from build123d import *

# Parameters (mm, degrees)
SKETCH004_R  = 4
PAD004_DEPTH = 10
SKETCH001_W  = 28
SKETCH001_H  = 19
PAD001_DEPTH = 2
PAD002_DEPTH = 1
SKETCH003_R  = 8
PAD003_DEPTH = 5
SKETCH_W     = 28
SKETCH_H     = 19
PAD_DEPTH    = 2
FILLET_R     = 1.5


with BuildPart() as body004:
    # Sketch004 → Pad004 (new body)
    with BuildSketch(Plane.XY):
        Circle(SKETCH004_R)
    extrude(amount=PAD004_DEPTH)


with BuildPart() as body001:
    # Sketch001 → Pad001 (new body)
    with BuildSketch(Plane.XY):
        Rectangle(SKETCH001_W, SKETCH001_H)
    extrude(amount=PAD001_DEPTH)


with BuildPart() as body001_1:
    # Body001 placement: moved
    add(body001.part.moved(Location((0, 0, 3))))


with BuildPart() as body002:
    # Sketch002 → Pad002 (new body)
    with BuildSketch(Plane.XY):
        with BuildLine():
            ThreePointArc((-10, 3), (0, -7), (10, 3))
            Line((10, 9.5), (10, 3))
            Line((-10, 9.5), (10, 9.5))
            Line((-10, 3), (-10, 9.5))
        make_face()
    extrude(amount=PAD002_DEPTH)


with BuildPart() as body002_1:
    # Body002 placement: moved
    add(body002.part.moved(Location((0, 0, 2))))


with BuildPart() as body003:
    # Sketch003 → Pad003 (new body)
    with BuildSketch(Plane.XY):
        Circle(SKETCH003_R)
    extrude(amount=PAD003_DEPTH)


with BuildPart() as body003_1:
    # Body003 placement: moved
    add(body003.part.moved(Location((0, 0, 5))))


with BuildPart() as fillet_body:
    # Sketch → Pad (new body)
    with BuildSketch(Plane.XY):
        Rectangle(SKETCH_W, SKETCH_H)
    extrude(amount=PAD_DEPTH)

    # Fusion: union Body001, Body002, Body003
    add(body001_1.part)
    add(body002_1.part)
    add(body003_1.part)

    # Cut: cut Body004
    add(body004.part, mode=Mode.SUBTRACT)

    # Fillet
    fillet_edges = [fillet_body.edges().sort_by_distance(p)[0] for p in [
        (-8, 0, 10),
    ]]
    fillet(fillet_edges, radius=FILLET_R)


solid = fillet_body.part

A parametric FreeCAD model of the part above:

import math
import FreeCAD as App
import Part
import Sketcher
from FreeCAD import Vector
Q = App.Units.Quantity


def edges_at(feature, points):
    """Names of the edges that pass closest to the given points."""
    edges = feature.Shape.Edges
    near = lambda p: min(range(len(edges)), key=lambda i: edges[i].distToShape(Part.Vertex(*p))[0])
    return sorted({f"Edge{near(p) + 1}" for p in points})

doc = App.newDocument("Part")
body = doc.addObject("PartDesign::Body", "Body")

sketch1 = doc.addObject("Sketcher::SketchObject", "Sketch")
body.addObject(sketch1)
sketch1.AttachmentSupport = (doc.XY_Plane, [""])
sketch1.MapMode = "FlatFace"
sketch1.addGeometry(Part.Circle(Vector(0, 0, 0), Vector(0, 0, 1), 4), False)
sketch1.addConstraint([
    Sketcher.Constraint("Coincident", 0, 3, -1, 1),
    Sketcher.Constraint("Diameter", 0, Q("8 mm")),
])
pad1 = doc.addObject("PartDesign::Pad", "Pad")
body.addObject(pad1)
pad1.Profile = sketch1
pad1.Length = 10
body2 = doc.addObject("PartDesign::Body", "Body001")

sketch2 = doc.addObject("Sketcher::SketchObject", "Sketch001")
body2.addObject(sketch2)
sketch2.AttachmentSupport = (doc.getObject("XY_Plane001"), [""])
sketch2.MapMode = "FlatFace"
sketch2.addGeometry([
    Part.LineSegment(Vector(-14, 10, 0), Vector(-14, -10, 0)),
    Part.LineSegment(Vector(-14, -10, 0), Vector(14, -10, 0)),
    Part.LineSegment(Vector(14, -10, 0), Vector(14, 10, 0)),
    Part.LineSegment(Vector(14, 10, 0), Vector(-14, 10, 0)),
], False)
sketch2.addConstraint([
    Sketcher.Constraint("Coincident", 0, 2, 1, 1),
    Sketcher.Constraint("Coincident", 1, 2, 2, 1),
    Sketcher.Constraint("Coincident", 2, 2, 3, 1),
    Sketcher.Constraint("Coincident", 3, 2, 0, 1),
    Sketcher.Constraint("Vertical", 0),
    Sketcher.Constraint("Horizontal", 1),
    Sketcher.Constraint("Vertical", 2),
    Sketcher.Constraint("Horizontal", 3),
    Sketcher.Constraint("Symmetric", 0, 2, 2, 2, -1, 1),
    Sketcher.Constraint("DistanceX", 1, 1, 1, 2, Q("28 mm")),
    Sketcher.Constraint("DistanceY", 0, 2, 0, 1, Q("19 mm")),
])
pad2 = doc.addObject("PartDesign::Pad", "Pad001")
body2.addObject(pad2)
pad2.Profile = sketch2
pad2.Length = 2
body3 = doc.addObject("PartDesign::Body", "Body002")
doc.recompute()

body2.Placement = App.Placement(Vector(0, 0, 3), App.Rotation(Vector(0, 0, 1), 0))
boolean = doc.addObject("PartDesign::Boolean", "Boolean")
body3.addObject(boolean)
boolean.Type = "Fuse"
boolean.addObjects([body2])
body4 = doc.addObject("PartDesign::Body", "Body003")

sketch3 = doc.addObject("Sketcher::SketchObject", "Sketch002")
body4.addObject(sketch3)
sketch3.AttachmentSupport = (doc.getObject("XY_Plane003"), [""])
sketch3.MapMode = "FlatFace"
sketch3.addGeometry([
    Part.ArcOfCircle(Part.Circle(Vector(0, 3, 0), Vector(0, 0, 1), 10), math.radians(180), math.radians(360)),
    Part.LineSegment(Vector(10, 3, 0), Vector(10, 10, 0)),
    Part.LineSegment(Vector(10, 10, 0), Vector(-10, 10, 0)),
    Part.LineSegment(Vector(-10, 10, 0), Vector(-10, 3, 0)),
], False)
sketch3.addConstraint([
    Sketcher.Constraint("Tangent", 0, 2, 1, 1),
    Sketcher.Constraint("Coincident", 1, 2, 2, 1),
    Sketcher.Constraint("Coincident", 2, 2, 3, 1),
    Sketcher.Constraint("Tangent", 3, 2, 0, 1),
    Sketcher.Constraint("Vertical", 1),
    Sketcher.Constraint("Horizontal", 2),
    Sketcher.Constraint("Vertical", 3),
    Sketcher.Constraint("PointOnObject", 0, 3, -2),
    Sketcher.Constraint("Radius", 0, Q("10 mm")),
    Sketcher.Constraint("DistanceY", 1, 1, 1, 2, Q("6.5 mm")),
    Sketcher.Constraint("DistanceY", -1, 1, 0, 3, Q("3 mm")),
])
pad3 = doc.addObject("PartDesign::Pad", "Pad002")
body4.addObject(pad3)
pad3.Profile = sketch3
pad3.Length = 1
body5 = doc.addObject("PartDesign::Body", "Body004")
doc.recompute()

body4.Placement = App.Placement(Vector(0, 0, 2), App.Rotation(Vector(0, 0, 1), 0))
boolean2 = doc.addObject("PartDesign::Boolean", "Boolean001")
body5.addObject(boolean2)
boolean2.Type = "Fuse"
boolean2.addObjects([body4])
body6 = doc.addObject("PartDesign::Body", "Body005")

sketch4 = doc.addObject("Sketcher::SketchObject", "Sketch003")
body6.addObject(sketch4)
sketch4.AttachmentSupport = (doc.getObject("XY_Plane005"), [""])
sketch4.MapMode = "FlatFace"
sketch4.addGeometry(Part.Circle(Vector(0, 0, 0), Vector(0, 0, 1), 8), False)
sketch4.addConstraint([
    Sketcher.Constraint("Coincident", 0, 3, -1, 1),
    Sketcher.Constraint("Diameter", 0, Q("16 mm")),
])
pad4 = doc.addObject("PartDesign::Pad", "Pad003")
body6.addObject(pad4)
pad4.Profile = sketch4
pad4.Length = 5
body7 = doc.addObject("PartDesign::Body", "Body006")
doc.recompute()

body6.Placement = App.Placement(Vector(0, 0, 5), App.Rotation(Vector(0, 0, 1), 0))
boolean3 = doc.addObject("PartDesign::Boolean", "Boolean002")
body7.addObject(boolean3)
boolean3.Type = "Fuse"
boolean3.addObjects([body6])
body8 = doc.addObject("PartDesign::Body", "Body007")
body8.AllowCompound = True

sketch5 = doc.addObject("Sketcher::SketchObject", "Sketch004")
body8.addObject(sketch5)
sketch5.AttachmentSupport = (doc.getObject("XY_Plane007"), [""])
sketch5.MapMode = "FlatFace"
sketch5.addGeometry([
    Part.LineSegment(Vector(-14, 10, 0), Vector(-14, -10, 0)),
    Part.LineSegment(Vector(-14, -10, 0), Vector(14, -10, 0)),
    Part.LineSegment(Vector(14, -10, 0), Vector(14, 10, 0)),
    Part.LineSegment(Vector(14, 10, 0), Vector(-14, 10, 0)),
], False)
sketch5.addConstraint([
    Sketcher.Constraint("Coincident", 0, 2, 1, 1),
    Sketcher.Constraint("Coincident", 1, 2, 2, 1),
    Sketcher.Constraint("Coincident", 2, 2, 3, 1),
    Sketcher.Constraint("Coincident", 3, 2, 0, 1),
    Sketcher.Constraint("Vertical", 0),
    Sketcher.Constraint("Horizontal", 1),
    Sketcher.Constraint("Vertical", 2),
    Sketcher.Constraint("Horizontal", 3),
    Sketcher.Constraint("Symmetric", 0, 2, 2, 2, -1, 1),
    Sketcher.Constraint("DistanceX", 1, 1, 1, 2, Q("28 mm")),
    Sketcher.Constraint("DistanceY", 0, 2, 0, 1, Q("19 mm")),
])
pad5 = doc.addObject("PartDesign::Pad", "Pad004")
body8.addObject(pad5)
pad5.Profile = sketch5
pad5.Length = 2
doc.recompute()

boolean4 = doc.addObject("PartDesign::Boolean", "Boolean003")
body8.addObject(boolean4)
boolean4.Type = "Fuse"
boolean4.addObjects([body3])
doc.recompute()

boolean5 = doc.addObject("PartDesign::Boolean", "Boolean004")
body8.addObject(boolean5)
boolean5.Type = "Fuse"
boolean5.addObjects([body5])
doc.recompute()

boolean6 = doc.addObject("PartDesign::Boolean", "Boolean005")
body8.addObject(boolean6)
boolean6.Type = "Fuse"
boolean6.addObjects([body7])
doc.recompute()

boolean7 = doc.addObject("PartDesign::Boolean", "Boolean006")
body8.addObject(boolean7)
boolean7.Type = "Cut"
boolean7.addObjects([body])
doc.recompute()

fillet = doc.addObject("PartDesign::Fillet", "Fillet")
body8.addObject(fillet)
fillet.Base = (boolean7, edges_at(boolean7, [(-8, 0, 10)]))
fillet.Radius = 1.5

doc.recompute()
